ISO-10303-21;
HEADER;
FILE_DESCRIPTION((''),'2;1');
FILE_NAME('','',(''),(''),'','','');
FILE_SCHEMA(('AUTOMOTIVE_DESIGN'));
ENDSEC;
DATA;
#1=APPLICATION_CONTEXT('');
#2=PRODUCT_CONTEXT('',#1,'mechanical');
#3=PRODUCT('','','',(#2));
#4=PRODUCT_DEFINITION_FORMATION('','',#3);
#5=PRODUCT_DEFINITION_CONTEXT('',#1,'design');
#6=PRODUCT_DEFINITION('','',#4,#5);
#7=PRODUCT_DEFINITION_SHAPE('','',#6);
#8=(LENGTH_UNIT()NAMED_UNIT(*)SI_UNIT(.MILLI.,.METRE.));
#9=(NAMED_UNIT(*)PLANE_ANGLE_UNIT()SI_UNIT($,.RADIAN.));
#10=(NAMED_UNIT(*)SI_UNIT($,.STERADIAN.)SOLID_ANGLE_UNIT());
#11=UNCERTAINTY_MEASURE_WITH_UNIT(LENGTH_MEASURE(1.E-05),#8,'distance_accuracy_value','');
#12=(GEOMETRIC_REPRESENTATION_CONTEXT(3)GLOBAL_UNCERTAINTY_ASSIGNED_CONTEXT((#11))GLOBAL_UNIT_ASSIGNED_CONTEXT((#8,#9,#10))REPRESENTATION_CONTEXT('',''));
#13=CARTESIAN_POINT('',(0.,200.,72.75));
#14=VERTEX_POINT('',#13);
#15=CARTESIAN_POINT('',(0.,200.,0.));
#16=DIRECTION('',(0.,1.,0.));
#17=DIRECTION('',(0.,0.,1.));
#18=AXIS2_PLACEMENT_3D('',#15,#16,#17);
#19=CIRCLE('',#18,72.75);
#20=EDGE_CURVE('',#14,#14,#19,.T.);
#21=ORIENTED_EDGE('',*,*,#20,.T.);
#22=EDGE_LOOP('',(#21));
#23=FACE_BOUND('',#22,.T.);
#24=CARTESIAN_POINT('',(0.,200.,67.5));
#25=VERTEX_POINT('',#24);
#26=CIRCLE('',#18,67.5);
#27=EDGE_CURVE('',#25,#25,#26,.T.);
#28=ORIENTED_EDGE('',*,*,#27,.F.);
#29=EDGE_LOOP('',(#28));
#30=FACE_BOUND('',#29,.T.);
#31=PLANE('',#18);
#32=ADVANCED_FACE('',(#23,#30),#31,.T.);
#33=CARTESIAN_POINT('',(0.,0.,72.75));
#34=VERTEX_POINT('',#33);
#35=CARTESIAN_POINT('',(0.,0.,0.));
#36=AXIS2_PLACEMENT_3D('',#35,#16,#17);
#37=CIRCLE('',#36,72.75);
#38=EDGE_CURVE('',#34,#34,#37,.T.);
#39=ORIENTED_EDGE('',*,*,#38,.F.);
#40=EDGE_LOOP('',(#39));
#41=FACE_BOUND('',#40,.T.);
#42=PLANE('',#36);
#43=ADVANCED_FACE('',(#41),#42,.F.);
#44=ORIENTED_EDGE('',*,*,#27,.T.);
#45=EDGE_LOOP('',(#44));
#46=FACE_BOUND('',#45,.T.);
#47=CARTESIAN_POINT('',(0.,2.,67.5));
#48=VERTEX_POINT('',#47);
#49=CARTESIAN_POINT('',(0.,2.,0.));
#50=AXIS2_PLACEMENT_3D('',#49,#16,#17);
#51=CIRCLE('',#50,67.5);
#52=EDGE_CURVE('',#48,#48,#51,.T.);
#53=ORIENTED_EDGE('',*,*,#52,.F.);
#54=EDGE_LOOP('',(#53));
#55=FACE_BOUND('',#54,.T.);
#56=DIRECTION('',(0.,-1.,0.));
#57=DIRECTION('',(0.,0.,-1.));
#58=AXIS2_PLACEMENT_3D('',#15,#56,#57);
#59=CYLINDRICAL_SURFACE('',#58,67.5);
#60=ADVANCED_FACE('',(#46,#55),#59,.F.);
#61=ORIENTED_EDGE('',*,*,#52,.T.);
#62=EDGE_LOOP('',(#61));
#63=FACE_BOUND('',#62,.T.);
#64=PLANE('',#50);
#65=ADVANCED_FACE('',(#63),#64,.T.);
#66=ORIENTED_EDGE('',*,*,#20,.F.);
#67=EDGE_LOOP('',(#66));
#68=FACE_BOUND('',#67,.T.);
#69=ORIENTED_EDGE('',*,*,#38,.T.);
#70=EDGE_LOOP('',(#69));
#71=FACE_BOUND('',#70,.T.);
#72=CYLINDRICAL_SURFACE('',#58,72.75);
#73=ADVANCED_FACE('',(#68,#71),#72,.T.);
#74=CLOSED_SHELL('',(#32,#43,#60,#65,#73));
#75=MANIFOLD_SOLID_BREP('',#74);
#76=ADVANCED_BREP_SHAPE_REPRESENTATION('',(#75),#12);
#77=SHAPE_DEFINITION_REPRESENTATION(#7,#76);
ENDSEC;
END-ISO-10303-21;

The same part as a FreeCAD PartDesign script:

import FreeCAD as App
import Part
import Sketcher

doc = App.newDocument("Part")
params = doc.addObject("Spreadsheet::Sheet", "Params")
for row, (alias, value) in enumerate([
    ("sketch1_diameter", "135 mm"),
    ("sketch1_diameter2", "145.5 mm"),
    ("pad1_length", "200 mm"),
    ("sketch2_diameter", "135 mm"),
    ("pad2_length", "2 mm"),
], start=1):
    params.set(f"A{row}", alias)
    params.set(f"B{row}", "=" + value)
    params.setAlias(f"B{row}", alias)

body = doc.addObject("PartDesign::Body", "Body")

sketch1 = body.newObject("Sketcher::SketchObject", "Sketch")
sketch1.AttachmentSupport = (doc.getObject("XZ_Plane"), [""])
sketch1.MapMode = "FlatFace"
sketch1.addGeometry([
    Part.Circle(App.Vector(0, 0, 0), App.Vector(0, 0, 1), 73),
    Part.Circle(App.Vector(0, 0, 0), App.Vector(0, 0, 1), 68),
], False)
sketch1.addConstraint([
    Sketcher.Constraint("Coincident", 0, 3, -1, 1),
    Sketcher.Constraint("Coincident", 1, 3, -1, 1),
    Sketcher.Constraint("Diameter", 1, 135.0),
    Sketcher.Constraint("Diameter", 0, 145.5),
])
sketch1.setExpression("Constraints[2]", "Params.sketch1_diameter")
sketch1.setExpression("Constraints[3]", "Params.sketch1_diameter2")
pad1 = body.newObject("PartDesign::Pad", "Pad")
pad1.Profile = sketch1
pad1.setExpression("Length", "Params.pad1_length")
pad1.Reversed = True

sketch2 = body.newObject("Sketcher::SketchObject", "Sketch001")
sketch2.AttachmentSupport = (doc.getObject("XZ_Plane"), [""])
sketch2.MapMode = "FlatFace"
sketch2.addGeometry(Part.Circle(App.Vector(0, 0, 0), App.Vector(0, 0, 1), 68), False)
sketch2.addConstraint([
    Sketcher.Constraint("Coincident", 0, 3, -1, 1),
    Sketcher.Constraint("Diameter", 0, 135.0),
])
sketch2.setExpression("Constraints[1]", "Params.sketch2_diameter")
pad2 = body.newObject("PartDesign::Pad", "Pad001")
pad2.Profile = sketch2
pad2.setExpression("Length", "Params.pad2_length")
pad2.Reversed = True

doc.recompute()
